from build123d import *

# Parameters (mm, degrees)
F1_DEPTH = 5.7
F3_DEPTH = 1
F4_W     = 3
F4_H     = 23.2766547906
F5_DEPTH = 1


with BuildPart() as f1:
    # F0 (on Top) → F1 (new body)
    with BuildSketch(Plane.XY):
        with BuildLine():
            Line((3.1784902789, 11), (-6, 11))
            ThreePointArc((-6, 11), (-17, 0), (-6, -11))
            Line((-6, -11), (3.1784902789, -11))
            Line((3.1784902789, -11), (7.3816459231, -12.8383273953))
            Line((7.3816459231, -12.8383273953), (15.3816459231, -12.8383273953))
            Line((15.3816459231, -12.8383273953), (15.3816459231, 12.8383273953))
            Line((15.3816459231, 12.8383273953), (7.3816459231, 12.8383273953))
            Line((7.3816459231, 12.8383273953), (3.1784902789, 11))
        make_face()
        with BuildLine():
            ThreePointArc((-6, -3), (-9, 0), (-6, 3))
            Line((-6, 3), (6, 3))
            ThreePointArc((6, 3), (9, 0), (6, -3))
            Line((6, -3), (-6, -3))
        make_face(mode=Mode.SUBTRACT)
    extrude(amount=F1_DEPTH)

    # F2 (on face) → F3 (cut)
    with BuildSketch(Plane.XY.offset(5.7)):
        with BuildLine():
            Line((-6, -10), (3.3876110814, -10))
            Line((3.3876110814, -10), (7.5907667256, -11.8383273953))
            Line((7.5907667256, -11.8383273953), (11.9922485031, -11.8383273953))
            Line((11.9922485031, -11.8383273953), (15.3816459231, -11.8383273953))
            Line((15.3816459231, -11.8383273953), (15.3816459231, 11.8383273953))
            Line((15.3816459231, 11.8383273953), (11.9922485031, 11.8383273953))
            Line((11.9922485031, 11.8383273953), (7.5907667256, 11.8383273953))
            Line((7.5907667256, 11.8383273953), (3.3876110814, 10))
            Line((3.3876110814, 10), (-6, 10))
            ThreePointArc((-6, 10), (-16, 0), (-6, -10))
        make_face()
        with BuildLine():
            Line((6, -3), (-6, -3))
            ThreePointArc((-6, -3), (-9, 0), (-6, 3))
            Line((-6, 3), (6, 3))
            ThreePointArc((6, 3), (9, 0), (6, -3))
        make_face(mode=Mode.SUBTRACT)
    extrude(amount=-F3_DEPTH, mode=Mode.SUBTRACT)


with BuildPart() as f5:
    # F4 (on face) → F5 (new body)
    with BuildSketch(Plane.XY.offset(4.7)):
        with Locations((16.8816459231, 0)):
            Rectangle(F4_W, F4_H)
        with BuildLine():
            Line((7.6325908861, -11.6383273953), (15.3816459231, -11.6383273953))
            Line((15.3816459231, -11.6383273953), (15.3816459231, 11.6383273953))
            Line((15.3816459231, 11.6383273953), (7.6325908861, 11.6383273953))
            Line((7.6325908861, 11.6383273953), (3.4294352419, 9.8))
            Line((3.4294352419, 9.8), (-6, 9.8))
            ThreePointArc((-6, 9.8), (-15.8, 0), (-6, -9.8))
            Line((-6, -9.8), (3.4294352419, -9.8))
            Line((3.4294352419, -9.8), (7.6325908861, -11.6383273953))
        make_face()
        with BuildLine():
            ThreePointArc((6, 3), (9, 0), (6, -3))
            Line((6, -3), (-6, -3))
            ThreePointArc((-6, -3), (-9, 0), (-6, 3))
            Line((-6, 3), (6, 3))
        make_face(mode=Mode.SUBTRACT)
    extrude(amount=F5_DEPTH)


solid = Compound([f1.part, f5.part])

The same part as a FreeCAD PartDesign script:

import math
import FreeCAD as App
import Part
import Sketcher

V = App.Vector

doc = App.newDocument("Part")
body = doc.addObject("PartDesign::Body", "Body")

sketch1 = doc.addObject("Sketcher::SketchObject", "Sketch")
body.addObject(sketch1)
sketch1.AttachmentSupport = (doc.XY_Plane, [""])
sketch1.MapMode = "FlatFace"
sketch1.addGeometry(Part.LineSegment(V(3.2, 11, 0), V(-6, 11, 0)), False)
sketch1.addGeometry(Part.ArcOfCircle(Part.Circle(V(-6, 0, 0), V(0, 0, 1), 11), math.radians(90), math.radians(270)), False)
sketch1.addGeometry(Part.LineSegment(V(-6, -11, 0), V(3.2, -11, 0)), False)
sketch1.addGeometry(Part.LineSegment(V(3.2, -11, 0), V(7.4, -12.8, 0)), False)
sketch1.addGeometry(Part.LineSegment(V(7.4, -12.8, 0), V(15.4, -12.8, 0)), False)
sketch1.addGeometry(Part.LineSegment(V(15.4, -12.8, 0), V(15.4, 12.8, 0)), False)
sketch1.addGeometry(Part.LineSegment(V(15.4, 12.8, 0), V(7.4, 12.8, 0)), False)
sketch1.addGeometry(Part.LineSegment(V(7.4, 12.8, 0), V(3.2, 11, 0)), False)
sketch1.addGeometry(Part.LineSegment(V(6, -3, 0), V(-6, -3, 0)), False)
sketch1.addGeometry(Part.ArcOfCircle(Part.Circle(V(-6, 0, 0), V(0, 0, 1), 3), math.radians(90), math.radians(270)), False)
sketch1.addGeometry(Part.LineSegment(V(-6, 3, 0), V(6, 3, 0)), False)
sketch1.addGeometry(Part.ArcOfCircle(Part.Circle(V(6, 0, 0), V(0, 0, 1), 3), math.radians(-90), math.radians(90)), False)
sketch1.addConstraint(Sketcher.Constraint("Tangent", 0, 2, 1, 1))
sketch1.addConstraint(Sketcher.Constraint("Tangent", 1, 2, 2, 1))
sketch1.addConstraint(Sketcher.Constraint("Coincident", 2, 2, 3, 1))
sketch1.addConstraint(Sketcher.Constraint("Coincident", 3, 2, 4, 1))
sketch1.addConstraint(Sketcher.Constraint("Coincident", 4, 2, 5, 1))
sketch1.addConstraint(Sketcher.Constraint("Coincident", 5, 2, 6, 1))
sketch1.addConstraint(Sketcher.Constraint("Coincident", 6, 2, 7, 1))
sketch1.addConstraint(Sketcher.Constraint("Coincident", 7, 2, 0, 1))
sketch1.addConstraint(Sketcher.Constraint("Tangent", 8, 2, 9, 2))
sketch1.addConstraint(Sketcher.Constraint("Tangent", 9, 1, 10, 1))
sketch1.addConstraint(Sketcher.Constraint("Tangent", 10, 2, 11, 2))
sketch1.addConstraint(Sketcher.Constraint("Tangent", 11, 1, 8, 1))
sketch1.addConstraint(Sketcher.Constraint("Horizontal", 0))
sketch1.addConstraint(Sketcher.Constraint("Horizontal", 2))
sketch1.addConstraint(Sketcher.Constraint("Horizontal", 4))
sketch1.addConstraint(Sketcher.Constraint("Vertical", 5))
sketch1.addConstraint(Sketcher.Constraint("Horizontal", 6))
sketch1.addConstraint(Sketcher.Constraint("Horizontal", 8))
sketch1.addConstraint(Sketcher.Constraint("Horizontal", 10))
sketch1.addConstraint(Sketcher.Constraint("Coincident", 9, 3, 1, 3))
sketch1.addConstraint(Sketcher.Constraint("Symmetric", 1, 3, 11, 3, -1, 1))
sketch1.addConstraint(Sketcher.Constraint("Symmetric", 3, 2, 6, 2, -1))
sketch1.addConstraint(Sketcher.Constraint("Vertical", 2, 2, 7, 2))
sketch1.addConstraint(Sketcher.Constraint("Radius", 1, 11.0))
sketch1.addConstraint(Sketcher.Constraint("Radius", 9, 3.0))
sketch1.addConstraint(Sketcher.Constraint("DistanceX", 4, 1, 4, 2, 8.0))
sketch1.addConstraint(Sketcher.Constraint("DistanceX", 8, 2, 8, 1, 12.0))
sketch1.addConstraint(Sketcher.Constraint("DistanceX", 0, 2, 0, 1, 9.17849))
sketch1.addConstraint(Sketcher.Constraint("Distance", 3, 4.587588))
sketch1.addConstraint(Sketcher.Constraint("DistanceY", 5, 1, 5, 2, 25.676655))
pad1 = doc.addObject("PartDesign::Pad", "Pad")
body.addObject(pad1)
pad1.Profile = sketch1
pad1.Length = 5.7

sketch2 = doc.addObject("Sketcher::SketchObject", "Sketch001")
body.addObject(sketch2)
sketch2.AttachmentSupport = (doc.XY_Plane, [""])
sketch2.MapMode = "FlatFace"
sketch2.AttachmentOffset = App.Placement(V(0, 0, 5.7), App.Rotation())
sketch2.addGeometry(Part.LineSegment(V(-6, -10, 0), V(3.4, -10, 0)), False)
sketch2.addGeometry(Part.LineSegment(V(3.4, -10, 0), V(7.6, -11.8, 0)), False)
sketch2.addGeometry(Part.LineSegment(V(7.6, -11.8, 0), V(15.4, -11.8, 0)), False)
sketch2.addGeometry(Part.LineSegment(V(15.4, -11.8, 0), V(15.4, 11.8, 0)), False)
sketch2.addGeometry(Part.LineSegment(V(15.4, 11.8, 0), V(7.6, 11.8, 0)), False)
sketch2.addGeometry(Part.LineSegment(V(7.6, 11.8, 0), V(3.4, 10, 0)), False)
sketch2.addGeometry(Part.LineSegment(V(3.4, 10, 0), V(-6, 10, 0)), False)
sketch2.addGeometry(Part.ArcOfCircle(Part.Circle(V(-6, 0, 0), V(0, 0, 1), 10), math.radians(90), math.radians(270)), False)
sketch2.addGeometry(Part.ArcOfCircle(Part.Circle(V(6, 0, 0), V(0, 0, 1), 3), math.radians(-90), math.radians(90)), False)
sketch2.addGeometry(Part.LineSegment(V(6, -3, 0), V(-6, -3, 0)), False)
sketch2.addGeometry(Part.ArcOfCircle(Part.Circle(V(-6, 0, 0), V(0, 0, 1), 3), math.radians(90), math.radians(270)), False)
sketch2.addGeometry(Part.LineSegment(V(-6, 3, 0), V(6, 3, 0)), False)
sketch2.addConstraint(Sketcher.Constraint("Coincident", 0, 2, 1, 1))
sketch2.addConstraint(Sketcher.Constraint("Coincident", 1, 2, 2, 1))
sketch2.addConstraint(Sketcher.Constraint("Coincident", 2, 2, 3, 1))
sketch2.addConstraint(Sketcher.Constraint("Coincident", 3, 2, 4, 1))
sketch2.addConstraint(Sketcher.Constraint("Coincident", 4, 2, 5, 1))
sketch2.addConstraint(Sketcher.Constraint("Coincident", 5, 2, 6, 1))
sketch2.addConstraint(Sketcher.Constraint("Tangent", 6, 2, 7, 1))
sketch2.addConstraint(Sketcher.Constraint("Tangent", 7, 2, 0, 1))
sketch2.addConstraint(Sketcher.Constraint("Tangent", 8, 1, 9, 1))
sketch2.addConstraint(Sketcher.Constraint("Tangent", 9, 2, 10, 2))
sketch2.addConstraint(Sketcher.Constraint("Tangent", 10, 1, 11, 1))
sketch2.addConstraint(Sketcher.Constraint("Tangent", 11, 2, 8, 2))
sketch2.addConstraint(Sketcher.Constraint("Horizontal", 0))
sketch2.addConstraint(Sketcher.Constraint("Horizontal", 2))
sketch2.addConstraint(Sketcher.Constraint("Vertical", 3))
sketch2.addConstraint(Sketcher.Constraint("Horizontal", 4))
sketch2.addConstraint(Sketcher.Constraint("Horizontal", 6))
sketch2.addConstraint(Sketcher.Constraint("Horizontal", 9))
sketch2.addConstraint(Sketcher.Constraint("Horizontal", 11))
sketch2.addConstraint(Sketcher.Constraint("Coincident", 10, 3, 7, 3))
sketch2.addConstraint(Sketcher.Constraint("Symmetric", 7, 3, 8, 3, -1, 1))
sketch2.addConstraint(Sketcher.Constraint("Symmetric", 1, 2, 4, 2, -1))
sketch2.addConstraint(Sketcher.Constraint("Vertical", 0, 2, 5, 2))
sketch2.addConstraint(Sketcher.Constraint("Radius", 7, 10.0))
sketch2.addConstraint(Sketcher.Constraint("Radius", 8, 3.0))
sketch2.addConstraint(Sketcher.Constraint("DistanceX", 9, 2, 9, 1, 12.0))
sketch2.addConstraint(Sketcher.Constraint("DistanceX", 0, 1, 0, 2, 9.387611))
sketch2.addConstraint(Sketcher.Constraint("DistanceX", 2, 1, 2, 2, 7.790879))
sketch2.addConstraint(Sketcher.Constraint("Distance", 1, 4.587588))
sketch2.addConstraint(Sketcher.Constraint("DistanceY", 3, 1, 3, 2, 23.676655))
pocket1 = doc.addObject("PartDesign::Pocket", "Pocket")
body.addObject(pocket1)
pocket1.Profile = sketch2
pocket1.Length = 1
body2 = doc.addObject("PartDesign::Body", "Body001")

sketch3 = doc.addObject("Sketcher::SketchObject", "Sketch002")
body2.addObject(sketch3)
sketch3.AttachmentSupport = (doc.getObject("XY_Plane001"), [""])
sketch3.MapMode = "FlatFace"
sketch3.AttachmentOffset = App.Placement(V(0, 0, 4.7), App.Rotation())
sketch3.addGeometry(Part.LineSegment(V(18.4, -11.6, 0), V(18.4, 11.6, 0)), False)
sketch3.addGeometry(Part.LineSegment(V(18.4, 11.6, 0), V(7.6, 11.6, 0)), False)
sketch3.addGeometry(Part.LineSegment(V(7.6, 11.6, 0), V(3.4, 9.8, 0)), False)
sketch3.addGeometry(Part.LineSegment(V(3.4, 9.8, 0), V(-6, 9.8, 0)), False)
sketch3.addGeometry(Part.ArcOfCircle(Part.Circle(V(-6, 0, 0), V(0, 0, 1), 9.8), math.radians(90), math.radians(270)), False)
sketch3.addGeometry(Part.LineSegment(V(-6, -9.8, 0), V(3.4, -9.8, 0)), False)
sketch3.addGeometry(Part.LineSegment(V(3.4, -9.8, 0), V(7.6, -11.6, 0)), False)
sketch3.addGeometry(Part.LineSegment(V(7.6, -11.6, 0), V(18.4, -11.6, 0)), False)
sketch3.addGeometry(Part.LineSegment(V(-6, 3, 0), V(6, 3, 0)), False)
sketch3.addGeometry(Part.ArcOfCircle(Part.Circle(V(6, 0, 0), V(0, 0, 1), 3), math.radians(-90), math.radians(90)), False)
sketch3.addGeometry(Part.LineSegment(V(6, -3, 0), V(-6, -3, 0)), False)
sketch3.addGeometry(Part.ArcOfCircle(Part.Circle(V(-6, 0, 0), V(0, 0, 1), 3), math.radians(90), math.radians(270)), False)
sketch3.addConstraint(Sketcher.Constraint("Coincident", 0, 2, 1, 1))
sketch3.addConstraint(Sketcher.Constraint("Coincident", 1, 2, 2, 1))
sketch3.addConstraint(Sketcher.Constraint("Coincident", 2, 2, 3, 1))
sketch3.addConstraint(Sketcher.Constraint("Tangent", 3, 2, 4, 1))
sketch3.addConstraint(Sketcher.Constraint("Tangent", 4, 2, 5, 1))
sketch3.addConstraint(Sketcher.Constraint("Coincident", 5, 2, 6, 1))
sketch3.addConstraint(Sketcher.Constraint("Coincident", 6, 2, 7, 1))
sketch3.addConstraint(Sketcher.Constraint("Coincident", 7, 2, 0, 1))
sketch3.addConstraint(Sketcher.Constraint("Tangent", 8, 2, 9, 2))
sketch3.addConstraint(Sketcher.Constraint("Tangent", 9, 1, 10, 1))
sketch3.addConstraint(Sketcher.Constraint("Tangent", 10, 2, 11, 2))
sketch3.addConstraint(Sketcher.Constraint("Tangent", 11, 1, 8, 1))
sketch3.addConstraint(Sketcher.Constraint("Vertical", 0))
sketch3.addConstraint(Sketcher.Constraint("Horizontal", 1))
sketch3.addConstraint(Sketcher.Constraint("Horizontal", 3))
sketch3.addConstraint(Sketcher.Constraint("Horizontal", 5))
sketch3.addConstraint(Sketcher.Constraint("Horizontal", 7))
sketch3.addConstraint(Sketcher.Constraint("Horizontal", 8))
sketch3.addConstraint(Sketcher.Constraint("Horizontal", 10))
sketch3.addConstraint(Sketcher.Constraint("Coincident", 11, 3, 4, 3))
sketch3.addConstraint(Sketcher.Constraint("Symmetric", 4, 3, 9, 3, -1, 1))
sketch3.addConstraint(Sketcher.Constraint("Symmetric", 1, 2, 6, 2, -1))
sketch3.addConstraint(Sketcher.Constraint("Vertical", 2, 2, 5, 2))
sketch3.addConstraint(Sketcher.Constraint("Radius", 9, 3.0))
sketch3.addConstraint(Sketcher.Constraint("Radius", 4, 9.8))
sketch3.addConstraint(Sketcher.Constraint("DistanceX", 8, 1, 8, 2, 12.0))
sketch3.addConstraint(Sketcher.Constraint("Distance", 2, 4.587588))
sketch3.addConstraint(Sketcher.Constraint("DistanceX", 1, 2, 1, 1, 10.749055))
sketch3.addConstraint(Sketcher.Constraint("DistanceX", 3, 2, 3, 1, 9.429435))
sketch3.addConstraint(Sketcher.Constraint("DistanceY", 0, 1, 0, 2, 23.276655))
pad2 = doc.addObject("PartDesign::Pad", "Pad001")
body2.addObject(pad2)
pad2.Profile = sketch3
pad2.Length = 1

doc.recompute()
